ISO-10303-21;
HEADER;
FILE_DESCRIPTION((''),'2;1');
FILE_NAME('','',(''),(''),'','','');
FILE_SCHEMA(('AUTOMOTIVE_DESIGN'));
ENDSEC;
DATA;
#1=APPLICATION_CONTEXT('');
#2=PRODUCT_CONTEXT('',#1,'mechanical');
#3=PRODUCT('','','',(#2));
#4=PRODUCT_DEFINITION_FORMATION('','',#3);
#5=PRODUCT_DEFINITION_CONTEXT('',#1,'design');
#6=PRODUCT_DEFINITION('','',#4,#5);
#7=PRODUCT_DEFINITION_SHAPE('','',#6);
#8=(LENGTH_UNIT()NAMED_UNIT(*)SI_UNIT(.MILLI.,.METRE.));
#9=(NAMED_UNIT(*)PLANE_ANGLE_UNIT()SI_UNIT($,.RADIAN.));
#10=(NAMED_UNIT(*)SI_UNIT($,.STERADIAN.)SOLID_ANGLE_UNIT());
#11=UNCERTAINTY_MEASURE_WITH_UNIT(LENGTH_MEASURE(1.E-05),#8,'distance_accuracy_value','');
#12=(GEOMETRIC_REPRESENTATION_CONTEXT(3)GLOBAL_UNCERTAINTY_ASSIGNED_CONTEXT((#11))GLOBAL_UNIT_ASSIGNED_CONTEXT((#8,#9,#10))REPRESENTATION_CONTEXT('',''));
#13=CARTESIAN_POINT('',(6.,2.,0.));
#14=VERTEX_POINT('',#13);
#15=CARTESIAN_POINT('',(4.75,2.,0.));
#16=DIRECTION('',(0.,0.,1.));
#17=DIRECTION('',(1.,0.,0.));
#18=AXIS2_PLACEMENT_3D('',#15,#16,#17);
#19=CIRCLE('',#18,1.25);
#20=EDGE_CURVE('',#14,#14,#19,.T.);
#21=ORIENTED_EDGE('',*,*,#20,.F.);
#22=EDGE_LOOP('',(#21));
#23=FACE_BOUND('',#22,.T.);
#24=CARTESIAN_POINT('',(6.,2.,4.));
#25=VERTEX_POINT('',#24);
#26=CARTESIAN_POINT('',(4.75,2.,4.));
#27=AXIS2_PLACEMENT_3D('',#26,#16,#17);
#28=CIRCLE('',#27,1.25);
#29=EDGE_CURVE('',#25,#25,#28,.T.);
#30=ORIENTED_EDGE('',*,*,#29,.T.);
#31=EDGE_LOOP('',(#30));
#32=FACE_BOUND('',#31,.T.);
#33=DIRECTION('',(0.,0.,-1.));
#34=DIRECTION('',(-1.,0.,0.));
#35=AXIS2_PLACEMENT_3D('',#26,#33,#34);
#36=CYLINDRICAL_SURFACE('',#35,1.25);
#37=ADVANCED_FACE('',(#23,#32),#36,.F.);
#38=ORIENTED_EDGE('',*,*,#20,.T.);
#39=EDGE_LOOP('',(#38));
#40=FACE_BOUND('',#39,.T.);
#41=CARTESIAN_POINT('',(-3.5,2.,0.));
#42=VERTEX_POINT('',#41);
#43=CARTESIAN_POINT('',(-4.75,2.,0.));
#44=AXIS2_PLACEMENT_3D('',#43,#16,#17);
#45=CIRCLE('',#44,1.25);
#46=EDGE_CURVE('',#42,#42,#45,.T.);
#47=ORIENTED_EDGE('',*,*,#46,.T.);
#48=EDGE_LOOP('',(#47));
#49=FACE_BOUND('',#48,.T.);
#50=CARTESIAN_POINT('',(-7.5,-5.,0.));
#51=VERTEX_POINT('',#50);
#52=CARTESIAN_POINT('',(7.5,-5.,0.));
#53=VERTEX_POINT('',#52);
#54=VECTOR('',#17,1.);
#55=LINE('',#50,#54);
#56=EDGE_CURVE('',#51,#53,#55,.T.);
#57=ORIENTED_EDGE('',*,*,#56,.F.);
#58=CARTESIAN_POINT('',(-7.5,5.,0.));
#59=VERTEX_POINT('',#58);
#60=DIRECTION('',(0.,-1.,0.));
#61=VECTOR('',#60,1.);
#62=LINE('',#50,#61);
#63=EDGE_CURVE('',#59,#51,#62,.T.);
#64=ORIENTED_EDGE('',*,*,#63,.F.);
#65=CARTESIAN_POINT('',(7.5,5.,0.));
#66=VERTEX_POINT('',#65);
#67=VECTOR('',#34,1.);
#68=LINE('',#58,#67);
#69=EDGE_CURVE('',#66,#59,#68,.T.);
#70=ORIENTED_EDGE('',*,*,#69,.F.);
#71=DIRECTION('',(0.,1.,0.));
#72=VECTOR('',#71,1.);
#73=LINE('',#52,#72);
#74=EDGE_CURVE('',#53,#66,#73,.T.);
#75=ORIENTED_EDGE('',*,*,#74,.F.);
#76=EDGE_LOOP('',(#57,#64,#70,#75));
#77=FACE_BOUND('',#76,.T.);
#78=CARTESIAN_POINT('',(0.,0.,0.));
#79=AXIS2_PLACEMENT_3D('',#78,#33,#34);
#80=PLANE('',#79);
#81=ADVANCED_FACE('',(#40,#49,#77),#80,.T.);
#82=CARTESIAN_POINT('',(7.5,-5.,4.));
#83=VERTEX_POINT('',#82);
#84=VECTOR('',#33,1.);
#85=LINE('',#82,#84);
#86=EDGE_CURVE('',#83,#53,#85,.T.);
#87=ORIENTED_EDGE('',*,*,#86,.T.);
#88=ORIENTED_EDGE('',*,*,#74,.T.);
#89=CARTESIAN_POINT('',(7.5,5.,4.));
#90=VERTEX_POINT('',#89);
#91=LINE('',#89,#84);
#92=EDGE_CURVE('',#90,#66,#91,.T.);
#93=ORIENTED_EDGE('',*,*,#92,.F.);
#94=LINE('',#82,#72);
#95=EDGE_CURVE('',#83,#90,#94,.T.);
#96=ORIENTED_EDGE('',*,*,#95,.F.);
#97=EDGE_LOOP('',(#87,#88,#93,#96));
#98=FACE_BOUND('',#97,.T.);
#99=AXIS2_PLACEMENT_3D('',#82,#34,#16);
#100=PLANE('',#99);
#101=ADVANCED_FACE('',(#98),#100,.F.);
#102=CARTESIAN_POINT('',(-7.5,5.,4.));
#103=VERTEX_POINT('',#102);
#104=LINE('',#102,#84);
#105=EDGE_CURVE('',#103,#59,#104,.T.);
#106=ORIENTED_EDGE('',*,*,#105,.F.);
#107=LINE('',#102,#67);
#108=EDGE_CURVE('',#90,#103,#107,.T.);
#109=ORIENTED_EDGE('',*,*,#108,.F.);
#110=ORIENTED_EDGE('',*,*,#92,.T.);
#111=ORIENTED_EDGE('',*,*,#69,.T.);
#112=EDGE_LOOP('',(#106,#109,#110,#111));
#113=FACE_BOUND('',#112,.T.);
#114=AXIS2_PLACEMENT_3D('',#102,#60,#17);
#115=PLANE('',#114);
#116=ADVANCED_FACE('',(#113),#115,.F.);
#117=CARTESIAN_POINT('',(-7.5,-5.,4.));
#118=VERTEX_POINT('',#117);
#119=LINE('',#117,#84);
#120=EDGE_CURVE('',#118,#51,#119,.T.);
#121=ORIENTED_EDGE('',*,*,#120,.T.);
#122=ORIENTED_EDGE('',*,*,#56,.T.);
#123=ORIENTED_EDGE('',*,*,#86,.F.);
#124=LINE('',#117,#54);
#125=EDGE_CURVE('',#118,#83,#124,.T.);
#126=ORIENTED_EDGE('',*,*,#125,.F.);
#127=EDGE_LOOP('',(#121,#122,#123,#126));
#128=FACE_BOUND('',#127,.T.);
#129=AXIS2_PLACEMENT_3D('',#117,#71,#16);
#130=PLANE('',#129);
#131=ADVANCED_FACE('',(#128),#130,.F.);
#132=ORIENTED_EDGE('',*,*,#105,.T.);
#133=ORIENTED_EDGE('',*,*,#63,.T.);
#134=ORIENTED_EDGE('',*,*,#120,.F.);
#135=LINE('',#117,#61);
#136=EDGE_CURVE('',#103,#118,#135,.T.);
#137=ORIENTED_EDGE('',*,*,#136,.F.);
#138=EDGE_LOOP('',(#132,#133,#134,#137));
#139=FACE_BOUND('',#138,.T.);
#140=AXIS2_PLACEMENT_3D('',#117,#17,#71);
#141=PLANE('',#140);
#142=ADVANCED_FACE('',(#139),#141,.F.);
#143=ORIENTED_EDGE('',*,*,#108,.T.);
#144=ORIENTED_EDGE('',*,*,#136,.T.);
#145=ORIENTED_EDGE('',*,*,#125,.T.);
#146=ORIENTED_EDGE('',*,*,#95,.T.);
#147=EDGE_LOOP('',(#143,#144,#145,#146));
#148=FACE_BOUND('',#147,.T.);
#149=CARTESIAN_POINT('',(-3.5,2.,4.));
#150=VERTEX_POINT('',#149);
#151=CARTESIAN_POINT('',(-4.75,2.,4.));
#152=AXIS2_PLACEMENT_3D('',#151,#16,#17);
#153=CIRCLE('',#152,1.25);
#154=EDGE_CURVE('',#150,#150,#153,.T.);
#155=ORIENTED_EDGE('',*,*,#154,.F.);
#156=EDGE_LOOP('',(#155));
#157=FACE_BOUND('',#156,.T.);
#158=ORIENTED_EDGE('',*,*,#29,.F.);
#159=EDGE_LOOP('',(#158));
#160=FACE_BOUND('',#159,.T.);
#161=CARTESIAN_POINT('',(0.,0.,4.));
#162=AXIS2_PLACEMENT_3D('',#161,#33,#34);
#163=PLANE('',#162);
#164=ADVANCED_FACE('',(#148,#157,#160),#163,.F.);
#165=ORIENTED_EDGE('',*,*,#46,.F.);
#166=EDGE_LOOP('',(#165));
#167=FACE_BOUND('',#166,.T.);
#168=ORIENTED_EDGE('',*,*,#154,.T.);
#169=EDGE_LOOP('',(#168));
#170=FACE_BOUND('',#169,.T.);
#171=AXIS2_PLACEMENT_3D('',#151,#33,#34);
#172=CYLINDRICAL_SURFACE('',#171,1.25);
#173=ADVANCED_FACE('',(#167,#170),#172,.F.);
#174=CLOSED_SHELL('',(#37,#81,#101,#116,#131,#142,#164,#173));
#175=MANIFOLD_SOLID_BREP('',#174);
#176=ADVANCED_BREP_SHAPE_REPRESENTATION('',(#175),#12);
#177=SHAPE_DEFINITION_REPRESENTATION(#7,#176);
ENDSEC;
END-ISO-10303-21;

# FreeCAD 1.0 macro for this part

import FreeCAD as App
import Part
import Sketcher
Q = App.Units.Quantity


def add_polygon(sketch, points):
    """Adds a closed chain of lines whose ends are joined by coincident constraints."""
    first, n = sketch.GeometryCount, len(points)
    for a, b in zip(points, points[1:] + points[:1]):
        sketch.addGeometry(Part.LineSegment(App.Vector(*a, 0), App.Vector(*b, 0)), False)
    for i in range(n):
        sketch.addConstraint(Sketcher.Constraint("Coincident", first + i, 2, first + (i + 1) % n, 1))

doc = App.newDocument("Part")
body = doc.addObject("PartDesign::Body", "Body")

sketch1 = doc.addObject("Sketcher::SketchObject", "Sketch")
body.addObject(sketch1)
sketch1.AttachmentSupport = (doc.XY_Plane, [""])
sketch1.MapMode = "FlatFace"
add_polygon(sketch1, [(-7.5, 5), (-7.5, -5), (7.5, -5), (7.5, 5)])
sketch1.addGeometry(Part.Circle(App.Vector(-4.8, 2, 0), App.Vector(0, 0, 1), 1.2), False)
sketch1.addGeometry(Part.Circle(App.Vector(4.8, 2, 0), App.Vector(0, 0, 1), 1.2), False)
sketch1.addConstraint([
    Sketcher.Constraint("Vertical", 0),
    Sketcher.Constraint("Horizontal", 1),
    Sketcher.Constraint("Vertical", 2),
    Sketcher.Constraint("Horizontal", 3),
    Sketcher.Constraint("Equal", 4, 5),
    Sketcher.Constraint("Symmetric", 0, 2, 2, 2, -1, 1),
    Sketcher.Constraint("Symmetric", 4, 3, 5, 3, -2),
    Sketcher.Constraint("Diameter", 4, Q("2.5 mm")),
    Sketcher.Constraint("DistanceX", 1, 1, 1, 2, Q("15 mm")),
    Sketcher.Constraint("DistanceY", 0, 2, 0, 1, Q("10 mm")),
    Sketcher.Constraint("DistanceY", -1, 1, 4, 3, Q("2 mm")),
    Sketcher.Constraint("DistanceX", 4, 3, 5, 3, Q("9.5 mm")),
])
pad1 = doc.addObject("PartDesign::Pad", "Pad")
body.addObject(pad1)
pad1.Profile = sketch1
pad1.Length = 4

doc.recompute()
